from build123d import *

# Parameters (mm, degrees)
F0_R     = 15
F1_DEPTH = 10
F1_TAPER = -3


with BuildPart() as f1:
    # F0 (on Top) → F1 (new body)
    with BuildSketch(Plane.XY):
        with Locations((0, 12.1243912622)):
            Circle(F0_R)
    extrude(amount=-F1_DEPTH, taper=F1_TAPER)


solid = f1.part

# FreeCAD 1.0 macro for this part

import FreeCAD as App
import Part
import Sketcher
from FreeCAD import Vector
Q = App.Units.Quantity

doc = App.newDocument("Part")
body = doc.addObject("PartDesign::Body", "Body")

# Sketch on XY plane
sketch1 = body.newObject("Sketcher::SketchObject", "Sketch")
sketch1.AttachmentSupport = (doc.getObject("XY_Plane"), [""])
sketch1.MapMode = "FlatFace"
sketch1.addGeometry(Part.Circle(Vector(0, 12, 0), Vector(0, 0, 1), 15), False)
sketch1.addConstraint([
    Sketcher.Constraint("PointOnObject", 0, 3, -2),
    Sketcher.Constraint("Diameter", 0, Q("30 mm")),
    Sketcher.Constraint("DistanceY", -1, 1, 0, 3, Q("12.124391 mm")),
])
pad1 = body.newObject("PartDesign::Pad", "Pad")
pad1.Profile = sketch1
pad1.Length = 10
pad1.Reversed = True
pad1.TaperAngle = 3

doc.recompute()
